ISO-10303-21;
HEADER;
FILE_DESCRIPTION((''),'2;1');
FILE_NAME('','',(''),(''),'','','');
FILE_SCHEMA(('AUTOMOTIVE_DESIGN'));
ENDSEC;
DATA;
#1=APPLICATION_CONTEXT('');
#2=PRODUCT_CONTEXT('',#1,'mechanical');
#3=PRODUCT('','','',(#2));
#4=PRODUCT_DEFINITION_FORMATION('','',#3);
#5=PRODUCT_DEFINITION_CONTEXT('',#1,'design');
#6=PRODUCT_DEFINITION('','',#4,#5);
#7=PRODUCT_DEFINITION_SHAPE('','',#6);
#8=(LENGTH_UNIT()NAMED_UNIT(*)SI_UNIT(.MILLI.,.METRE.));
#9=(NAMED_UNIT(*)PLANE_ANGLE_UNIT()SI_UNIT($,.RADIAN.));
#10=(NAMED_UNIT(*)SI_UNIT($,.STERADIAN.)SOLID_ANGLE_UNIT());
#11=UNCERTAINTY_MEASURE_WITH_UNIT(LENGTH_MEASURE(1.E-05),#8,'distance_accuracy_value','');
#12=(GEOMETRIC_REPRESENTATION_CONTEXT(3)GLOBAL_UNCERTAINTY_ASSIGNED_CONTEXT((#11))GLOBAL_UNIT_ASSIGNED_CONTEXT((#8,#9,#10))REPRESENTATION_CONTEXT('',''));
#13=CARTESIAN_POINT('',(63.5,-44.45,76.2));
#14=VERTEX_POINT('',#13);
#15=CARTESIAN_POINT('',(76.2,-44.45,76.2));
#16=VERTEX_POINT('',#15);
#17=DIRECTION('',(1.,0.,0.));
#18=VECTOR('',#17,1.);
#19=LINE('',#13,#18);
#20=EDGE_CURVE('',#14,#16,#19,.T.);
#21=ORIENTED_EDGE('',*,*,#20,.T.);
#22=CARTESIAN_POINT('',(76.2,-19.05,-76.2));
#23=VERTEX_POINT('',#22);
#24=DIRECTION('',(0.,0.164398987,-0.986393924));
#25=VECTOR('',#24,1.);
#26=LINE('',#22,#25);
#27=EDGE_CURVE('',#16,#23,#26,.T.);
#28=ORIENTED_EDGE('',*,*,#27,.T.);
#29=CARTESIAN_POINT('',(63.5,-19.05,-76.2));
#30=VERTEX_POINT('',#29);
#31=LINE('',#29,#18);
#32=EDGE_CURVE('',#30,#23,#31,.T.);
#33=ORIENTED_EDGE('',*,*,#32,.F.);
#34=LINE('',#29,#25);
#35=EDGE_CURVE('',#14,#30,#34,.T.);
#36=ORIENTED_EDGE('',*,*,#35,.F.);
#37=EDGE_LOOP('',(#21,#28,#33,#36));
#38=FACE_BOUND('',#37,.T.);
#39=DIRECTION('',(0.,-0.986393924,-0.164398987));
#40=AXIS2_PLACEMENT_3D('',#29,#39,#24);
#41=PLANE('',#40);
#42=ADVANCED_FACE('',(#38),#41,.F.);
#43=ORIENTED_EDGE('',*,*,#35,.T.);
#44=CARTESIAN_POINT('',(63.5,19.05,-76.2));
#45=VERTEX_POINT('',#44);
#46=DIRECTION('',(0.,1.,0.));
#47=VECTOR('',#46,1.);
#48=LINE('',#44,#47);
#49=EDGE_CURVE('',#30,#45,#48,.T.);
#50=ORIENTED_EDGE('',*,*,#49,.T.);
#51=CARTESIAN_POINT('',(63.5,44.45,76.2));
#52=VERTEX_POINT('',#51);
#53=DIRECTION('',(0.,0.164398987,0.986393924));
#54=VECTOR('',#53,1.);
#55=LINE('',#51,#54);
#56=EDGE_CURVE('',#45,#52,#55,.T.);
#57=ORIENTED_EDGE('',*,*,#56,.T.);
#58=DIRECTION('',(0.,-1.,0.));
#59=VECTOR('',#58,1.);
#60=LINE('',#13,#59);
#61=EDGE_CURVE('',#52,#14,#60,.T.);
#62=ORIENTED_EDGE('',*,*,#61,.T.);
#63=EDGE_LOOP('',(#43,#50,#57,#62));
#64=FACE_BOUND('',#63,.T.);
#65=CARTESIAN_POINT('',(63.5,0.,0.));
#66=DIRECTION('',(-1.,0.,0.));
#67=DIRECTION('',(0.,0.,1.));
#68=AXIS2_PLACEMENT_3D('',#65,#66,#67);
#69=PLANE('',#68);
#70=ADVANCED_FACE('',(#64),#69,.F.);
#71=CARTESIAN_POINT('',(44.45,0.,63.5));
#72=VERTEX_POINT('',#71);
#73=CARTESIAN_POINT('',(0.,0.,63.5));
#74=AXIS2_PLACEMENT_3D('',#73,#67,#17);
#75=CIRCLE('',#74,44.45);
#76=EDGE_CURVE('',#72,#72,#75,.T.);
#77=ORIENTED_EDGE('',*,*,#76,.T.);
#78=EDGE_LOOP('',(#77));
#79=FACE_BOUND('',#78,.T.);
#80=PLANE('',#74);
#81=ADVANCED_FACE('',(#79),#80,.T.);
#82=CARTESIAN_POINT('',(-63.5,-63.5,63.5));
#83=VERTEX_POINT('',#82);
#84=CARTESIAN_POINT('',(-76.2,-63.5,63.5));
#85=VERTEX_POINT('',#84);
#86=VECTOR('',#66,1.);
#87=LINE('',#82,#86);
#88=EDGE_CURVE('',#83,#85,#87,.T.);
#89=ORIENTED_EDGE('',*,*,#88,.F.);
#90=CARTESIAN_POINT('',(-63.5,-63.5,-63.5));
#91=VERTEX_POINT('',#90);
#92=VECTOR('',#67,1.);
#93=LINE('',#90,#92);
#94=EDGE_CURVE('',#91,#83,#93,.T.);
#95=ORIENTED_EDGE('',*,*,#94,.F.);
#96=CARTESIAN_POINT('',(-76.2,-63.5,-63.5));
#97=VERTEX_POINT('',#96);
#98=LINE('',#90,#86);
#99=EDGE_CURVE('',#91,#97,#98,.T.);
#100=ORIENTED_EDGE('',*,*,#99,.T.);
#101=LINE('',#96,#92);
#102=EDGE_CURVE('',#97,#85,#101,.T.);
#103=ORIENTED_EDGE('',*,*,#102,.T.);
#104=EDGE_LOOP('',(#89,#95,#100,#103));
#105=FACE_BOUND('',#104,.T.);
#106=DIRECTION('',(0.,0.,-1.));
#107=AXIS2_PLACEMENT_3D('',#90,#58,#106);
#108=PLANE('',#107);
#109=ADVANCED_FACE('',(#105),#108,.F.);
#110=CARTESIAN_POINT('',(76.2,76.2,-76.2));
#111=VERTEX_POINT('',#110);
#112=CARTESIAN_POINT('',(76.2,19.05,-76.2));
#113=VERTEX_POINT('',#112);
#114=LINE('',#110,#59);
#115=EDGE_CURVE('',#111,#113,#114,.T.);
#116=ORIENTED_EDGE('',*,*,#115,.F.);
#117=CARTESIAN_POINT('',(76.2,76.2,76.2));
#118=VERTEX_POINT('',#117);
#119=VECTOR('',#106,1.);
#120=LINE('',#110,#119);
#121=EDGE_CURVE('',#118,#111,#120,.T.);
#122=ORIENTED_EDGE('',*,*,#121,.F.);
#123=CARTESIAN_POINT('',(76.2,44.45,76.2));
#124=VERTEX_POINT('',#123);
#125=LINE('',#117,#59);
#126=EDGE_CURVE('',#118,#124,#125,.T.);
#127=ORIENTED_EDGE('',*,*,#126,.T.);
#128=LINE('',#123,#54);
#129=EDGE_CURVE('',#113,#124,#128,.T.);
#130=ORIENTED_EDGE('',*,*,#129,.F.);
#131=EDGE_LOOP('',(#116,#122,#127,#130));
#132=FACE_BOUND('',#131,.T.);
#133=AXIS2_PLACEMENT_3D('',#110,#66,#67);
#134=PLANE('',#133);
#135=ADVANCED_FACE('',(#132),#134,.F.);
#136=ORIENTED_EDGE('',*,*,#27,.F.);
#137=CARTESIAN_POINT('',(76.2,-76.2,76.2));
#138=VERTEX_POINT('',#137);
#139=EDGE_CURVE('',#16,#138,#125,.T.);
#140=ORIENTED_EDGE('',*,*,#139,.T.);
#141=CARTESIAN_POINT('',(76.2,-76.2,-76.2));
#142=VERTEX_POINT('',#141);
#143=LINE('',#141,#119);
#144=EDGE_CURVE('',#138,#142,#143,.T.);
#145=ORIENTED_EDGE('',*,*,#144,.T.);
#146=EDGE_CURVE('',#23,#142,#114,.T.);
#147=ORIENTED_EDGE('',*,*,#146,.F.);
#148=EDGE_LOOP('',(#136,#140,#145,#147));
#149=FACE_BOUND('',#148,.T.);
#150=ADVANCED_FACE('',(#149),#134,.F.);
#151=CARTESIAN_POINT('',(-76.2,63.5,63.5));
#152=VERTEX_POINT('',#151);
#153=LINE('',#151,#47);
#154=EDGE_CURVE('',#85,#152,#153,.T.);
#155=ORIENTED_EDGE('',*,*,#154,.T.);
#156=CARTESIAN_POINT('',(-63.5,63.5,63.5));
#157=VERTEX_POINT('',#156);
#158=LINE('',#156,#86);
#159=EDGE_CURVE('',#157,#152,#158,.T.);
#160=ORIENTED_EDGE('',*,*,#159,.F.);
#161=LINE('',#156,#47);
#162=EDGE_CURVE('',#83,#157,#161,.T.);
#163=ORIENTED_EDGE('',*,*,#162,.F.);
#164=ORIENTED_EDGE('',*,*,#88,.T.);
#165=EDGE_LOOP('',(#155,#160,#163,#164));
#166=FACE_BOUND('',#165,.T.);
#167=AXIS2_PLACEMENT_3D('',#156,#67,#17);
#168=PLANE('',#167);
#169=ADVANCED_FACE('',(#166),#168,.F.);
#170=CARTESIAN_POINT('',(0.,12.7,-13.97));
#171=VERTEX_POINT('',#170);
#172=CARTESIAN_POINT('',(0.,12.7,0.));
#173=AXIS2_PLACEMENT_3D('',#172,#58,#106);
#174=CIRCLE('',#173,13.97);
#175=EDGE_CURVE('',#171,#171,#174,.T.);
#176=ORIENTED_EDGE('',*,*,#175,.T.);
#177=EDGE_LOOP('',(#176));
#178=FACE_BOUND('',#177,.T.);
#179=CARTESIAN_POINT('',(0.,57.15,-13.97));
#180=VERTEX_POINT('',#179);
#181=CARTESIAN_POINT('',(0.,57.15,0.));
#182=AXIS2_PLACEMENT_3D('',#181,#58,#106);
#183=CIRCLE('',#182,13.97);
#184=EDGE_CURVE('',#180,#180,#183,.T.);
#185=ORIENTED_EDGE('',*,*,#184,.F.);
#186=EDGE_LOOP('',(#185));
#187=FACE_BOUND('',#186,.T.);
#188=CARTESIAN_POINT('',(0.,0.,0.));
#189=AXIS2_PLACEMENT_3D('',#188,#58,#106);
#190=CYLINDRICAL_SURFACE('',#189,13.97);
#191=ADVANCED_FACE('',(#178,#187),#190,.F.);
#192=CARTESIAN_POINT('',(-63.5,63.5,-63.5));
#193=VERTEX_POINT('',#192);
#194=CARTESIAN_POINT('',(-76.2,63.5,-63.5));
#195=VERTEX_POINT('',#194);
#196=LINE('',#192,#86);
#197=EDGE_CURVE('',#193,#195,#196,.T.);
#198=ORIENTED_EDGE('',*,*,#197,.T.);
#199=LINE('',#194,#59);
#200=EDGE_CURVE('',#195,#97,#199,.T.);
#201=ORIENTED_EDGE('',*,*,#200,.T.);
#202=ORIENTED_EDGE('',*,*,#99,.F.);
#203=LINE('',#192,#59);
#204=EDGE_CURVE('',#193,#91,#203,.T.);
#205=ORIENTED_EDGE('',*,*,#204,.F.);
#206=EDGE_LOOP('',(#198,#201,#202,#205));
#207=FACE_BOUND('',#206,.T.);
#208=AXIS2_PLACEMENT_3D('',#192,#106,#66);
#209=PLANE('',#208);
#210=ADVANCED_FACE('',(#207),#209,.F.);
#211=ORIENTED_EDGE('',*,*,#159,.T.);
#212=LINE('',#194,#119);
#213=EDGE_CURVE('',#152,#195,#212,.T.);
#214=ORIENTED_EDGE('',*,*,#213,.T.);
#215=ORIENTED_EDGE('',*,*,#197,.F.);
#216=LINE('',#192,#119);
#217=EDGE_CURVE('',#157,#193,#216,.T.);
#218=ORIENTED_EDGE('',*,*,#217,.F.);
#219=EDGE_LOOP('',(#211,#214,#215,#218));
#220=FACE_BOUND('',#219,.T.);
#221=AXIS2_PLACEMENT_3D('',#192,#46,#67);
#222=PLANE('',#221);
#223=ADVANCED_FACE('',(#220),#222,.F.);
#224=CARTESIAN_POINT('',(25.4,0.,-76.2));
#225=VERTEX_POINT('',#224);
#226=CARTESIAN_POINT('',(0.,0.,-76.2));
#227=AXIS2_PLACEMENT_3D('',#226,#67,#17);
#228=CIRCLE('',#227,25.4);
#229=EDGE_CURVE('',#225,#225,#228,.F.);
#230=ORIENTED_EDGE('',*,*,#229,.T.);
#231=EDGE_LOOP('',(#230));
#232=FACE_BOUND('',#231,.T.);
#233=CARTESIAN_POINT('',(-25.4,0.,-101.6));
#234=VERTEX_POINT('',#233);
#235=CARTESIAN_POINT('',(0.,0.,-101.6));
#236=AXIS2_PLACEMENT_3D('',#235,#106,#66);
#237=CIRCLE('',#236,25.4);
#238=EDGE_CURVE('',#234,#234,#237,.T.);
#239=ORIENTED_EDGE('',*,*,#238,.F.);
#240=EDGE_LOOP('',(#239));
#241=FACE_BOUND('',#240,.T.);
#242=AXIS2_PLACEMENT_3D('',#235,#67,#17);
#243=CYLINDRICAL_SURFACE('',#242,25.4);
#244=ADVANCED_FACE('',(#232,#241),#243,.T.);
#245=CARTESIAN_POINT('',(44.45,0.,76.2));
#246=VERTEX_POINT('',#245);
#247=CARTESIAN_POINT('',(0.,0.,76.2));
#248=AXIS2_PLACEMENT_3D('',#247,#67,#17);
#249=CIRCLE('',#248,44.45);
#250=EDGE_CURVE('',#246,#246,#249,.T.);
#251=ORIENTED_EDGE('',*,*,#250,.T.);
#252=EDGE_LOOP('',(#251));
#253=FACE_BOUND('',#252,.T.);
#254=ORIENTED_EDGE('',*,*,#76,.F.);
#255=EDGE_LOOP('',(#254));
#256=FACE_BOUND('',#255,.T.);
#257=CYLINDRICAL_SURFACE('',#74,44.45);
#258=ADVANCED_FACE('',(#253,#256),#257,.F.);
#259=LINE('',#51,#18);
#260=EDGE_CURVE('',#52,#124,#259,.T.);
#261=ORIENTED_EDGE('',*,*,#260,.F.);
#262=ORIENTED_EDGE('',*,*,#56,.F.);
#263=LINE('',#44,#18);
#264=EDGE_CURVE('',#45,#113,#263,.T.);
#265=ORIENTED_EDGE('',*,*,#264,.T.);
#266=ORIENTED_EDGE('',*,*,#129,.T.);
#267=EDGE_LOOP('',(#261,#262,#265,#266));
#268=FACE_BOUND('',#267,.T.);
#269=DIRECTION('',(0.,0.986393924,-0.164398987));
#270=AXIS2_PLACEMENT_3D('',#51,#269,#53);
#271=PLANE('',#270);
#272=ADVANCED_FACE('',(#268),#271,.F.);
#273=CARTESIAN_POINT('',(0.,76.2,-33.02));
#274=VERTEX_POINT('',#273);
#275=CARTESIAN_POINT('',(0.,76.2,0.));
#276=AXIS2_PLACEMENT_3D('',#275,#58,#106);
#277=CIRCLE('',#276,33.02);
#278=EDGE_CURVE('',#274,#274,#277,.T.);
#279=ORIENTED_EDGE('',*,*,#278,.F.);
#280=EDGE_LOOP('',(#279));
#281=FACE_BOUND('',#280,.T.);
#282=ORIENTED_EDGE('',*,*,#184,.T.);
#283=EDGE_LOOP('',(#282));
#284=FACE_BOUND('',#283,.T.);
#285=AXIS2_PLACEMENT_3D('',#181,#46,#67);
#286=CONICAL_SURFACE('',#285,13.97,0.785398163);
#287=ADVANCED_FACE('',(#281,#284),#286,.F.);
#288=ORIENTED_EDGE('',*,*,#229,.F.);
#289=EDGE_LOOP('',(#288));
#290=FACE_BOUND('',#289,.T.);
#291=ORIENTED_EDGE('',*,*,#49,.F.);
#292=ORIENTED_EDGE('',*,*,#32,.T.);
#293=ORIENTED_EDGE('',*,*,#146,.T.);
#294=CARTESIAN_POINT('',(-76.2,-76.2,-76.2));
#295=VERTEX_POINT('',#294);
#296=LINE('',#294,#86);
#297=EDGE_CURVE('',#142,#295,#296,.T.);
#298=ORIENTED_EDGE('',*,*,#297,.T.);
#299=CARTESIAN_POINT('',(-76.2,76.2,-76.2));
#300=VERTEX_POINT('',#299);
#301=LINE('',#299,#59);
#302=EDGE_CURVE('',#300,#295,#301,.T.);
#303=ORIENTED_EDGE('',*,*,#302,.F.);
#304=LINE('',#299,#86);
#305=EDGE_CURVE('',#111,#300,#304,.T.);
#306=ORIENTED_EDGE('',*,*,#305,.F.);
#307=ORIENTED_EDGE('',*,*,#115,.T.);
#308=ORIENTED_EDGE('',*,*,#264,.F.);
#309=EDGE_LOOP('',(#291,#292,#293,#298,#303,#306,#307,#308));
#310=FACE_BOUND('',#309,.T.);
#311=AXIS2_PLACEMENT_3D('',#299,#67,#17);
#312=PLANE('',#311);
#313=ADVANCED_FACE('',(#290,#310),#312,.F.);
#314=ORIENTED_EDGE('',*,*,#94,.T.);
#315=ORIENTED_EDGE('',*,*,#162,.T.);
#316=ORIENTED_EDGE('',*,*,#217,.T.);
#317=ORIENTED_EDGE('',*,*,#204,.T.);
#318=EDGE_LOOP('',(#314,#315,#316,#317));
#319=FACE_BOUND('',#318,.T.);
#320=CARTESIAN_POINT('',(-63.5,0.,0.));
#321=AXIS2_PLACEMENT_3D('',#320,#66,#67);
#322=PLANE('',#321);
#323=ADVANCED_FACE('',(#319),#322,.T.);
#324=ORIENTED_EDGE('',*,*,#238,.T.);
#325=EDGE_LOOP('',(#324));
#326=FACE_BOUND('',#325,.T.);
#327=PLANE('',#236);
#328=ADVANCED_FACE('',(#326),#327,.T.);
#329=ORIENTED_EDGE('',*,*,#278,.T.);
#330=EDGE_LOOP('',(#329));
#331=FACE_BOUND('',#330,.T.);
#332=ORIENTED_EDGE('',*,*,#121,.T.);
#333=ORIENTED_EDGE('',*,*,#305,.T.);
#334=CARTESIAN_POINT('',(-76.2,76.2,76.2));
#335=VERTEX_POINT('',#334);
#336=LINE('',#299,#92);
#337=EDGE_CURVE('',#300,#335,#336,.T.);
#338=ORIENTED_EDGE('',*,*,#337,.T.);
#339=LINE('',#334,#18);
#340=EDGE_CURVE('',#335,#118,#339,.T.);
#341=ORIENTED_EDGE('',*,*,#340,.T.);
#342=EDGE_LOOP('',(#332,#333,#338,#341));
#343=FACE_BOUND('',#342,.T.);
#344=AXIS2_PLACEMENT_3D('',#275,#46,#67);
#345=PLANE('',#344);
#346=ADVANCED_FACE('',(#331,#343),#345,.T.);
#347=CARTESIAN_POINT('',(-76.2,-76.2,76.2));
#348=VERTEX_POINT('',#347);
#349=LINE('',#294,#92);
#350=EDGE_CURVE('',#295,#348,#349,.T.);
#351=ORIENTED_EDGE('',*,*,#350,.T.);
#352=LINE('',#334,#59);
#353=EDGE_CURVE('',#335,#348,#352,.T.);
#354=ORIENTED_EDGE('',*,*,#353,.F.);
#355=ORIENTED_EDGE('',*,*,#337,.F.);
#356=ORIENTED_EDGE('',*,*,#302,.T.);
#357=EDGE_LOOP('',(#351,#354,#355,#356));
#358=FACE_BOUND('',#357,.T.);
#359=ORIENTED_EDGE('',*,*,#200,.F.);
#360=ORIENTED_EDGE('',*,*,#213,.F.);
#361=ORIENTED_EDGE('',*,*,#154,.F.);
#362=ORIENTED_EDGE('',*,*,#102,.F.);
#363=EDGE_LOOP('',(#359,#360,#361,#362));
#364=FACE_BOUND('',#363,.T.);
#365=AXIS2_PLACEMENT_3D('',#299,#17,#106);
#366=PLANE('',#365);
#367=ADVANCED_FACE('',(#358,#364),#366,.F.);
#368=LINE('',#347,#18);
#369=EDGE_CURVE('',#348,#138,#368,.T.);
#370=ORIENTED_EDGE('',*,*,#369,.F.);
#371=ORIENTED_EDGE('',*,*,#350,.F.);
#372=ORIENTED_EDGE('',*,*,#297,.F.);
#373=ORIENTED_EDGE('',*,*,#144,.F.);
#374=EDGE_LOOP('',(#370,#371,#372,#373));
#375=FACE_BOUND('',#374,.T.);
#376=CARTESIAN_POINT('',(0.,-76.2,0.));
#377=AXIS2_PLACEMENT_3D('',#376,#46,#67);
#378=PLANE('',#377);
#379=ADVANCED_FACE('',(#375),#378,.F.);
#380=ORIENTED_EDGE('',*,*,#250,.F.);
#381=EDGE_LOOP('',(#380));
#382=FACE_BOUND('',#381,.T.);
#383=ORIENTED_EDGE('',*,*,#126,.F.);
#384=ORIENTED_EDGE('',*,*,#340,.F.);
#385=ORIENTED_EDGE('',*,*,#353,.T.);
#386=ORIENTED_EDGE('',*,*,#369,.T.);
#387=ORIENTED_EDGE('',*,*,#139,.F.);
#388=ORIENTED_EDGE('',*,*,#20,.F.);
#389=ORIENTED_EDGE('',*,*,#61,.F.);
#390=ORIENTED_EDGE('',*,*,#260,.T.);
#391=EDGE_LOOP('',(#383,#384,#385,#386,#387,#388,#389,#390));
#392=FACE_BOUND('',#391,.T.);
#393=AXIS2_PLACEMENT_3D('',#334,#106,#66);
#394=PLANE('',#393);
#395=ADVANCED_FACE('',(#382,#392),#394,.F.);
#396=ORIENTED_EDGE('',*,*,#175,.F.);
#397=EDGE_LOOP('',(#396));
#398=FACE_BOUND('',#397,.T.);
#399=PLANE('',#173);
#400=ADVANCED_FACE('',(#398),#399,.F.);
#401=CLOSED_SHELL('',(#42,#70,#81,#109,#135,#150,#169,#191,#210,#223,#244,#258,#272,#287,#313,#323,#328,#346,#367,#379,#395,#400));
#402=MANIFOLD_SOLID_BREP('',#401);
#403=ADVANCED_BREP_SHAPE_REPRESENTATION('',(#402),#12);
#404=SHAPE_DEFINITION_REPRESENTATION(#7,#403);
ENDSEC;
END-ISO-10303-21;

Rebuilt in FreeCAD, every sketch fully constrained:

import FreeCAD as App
import Part
import Sketcher
Q = App.Units.Quantity

doc = App.newDocument("Part")
body = doc.addObject("PartDesign::Body", "Body")

# Sketch on XZ plane
sketch1 = body.newObject("Sketcher::SketchObject", "Sketch")
sketch1.AttachmentSupport = (doc.getObject("XZ_Plane"), [""])
sketch1.MapMode = "FlatFace"
sketch1.addGeometry([
    Part.LineSegment(App.Vector(-76.2, -76.2, 0), App.Vector(-76.2, 76.2, 0)),
    Part.LineSegment(App.Vector(-76.2, 76.2, 0), App.Vector(76.2, 76.2, 0)),
    Part.LineSegment(App.Vector(76.2, 76.2, 0), App.Vector(76.2, -76.2, 0)),
    Part.LineSegment(App.Vector(76.2, -76.2, 0), App.Vector(-76.2, -76.2, 0)),
], False)
sketch1.addConstraint([
    Sketcher.Constraint("Coincident", 0, 2, 1, 1),
    Sketcher.Constraint("Coincident", 1, 2, 2, 1),
    Sketcher.Constraint("Coincident", 2, 2, 3, 1),
    Sketcher.Constraint("Coincident", 3, 2, 0, 1),
    Sketcher.Constraint("Vertical", 0),
    Sketcher.Constraint("Horizontal", 1),
    Sketcher.Constraint("Vertical", 2),
    Sketcher.Constraint("Horizontal", 3),
    Sketcher.Constraint("Symmetric", 0, 2, 2, 2, -1, 1),
    Sketcher.Constraint("Equal", 3, 0),
    Sketcher.Constraint("DistanceX", 1, 1, 1, 2, Q("6 in")),
])
pad1 = body.newObject("PartDesign::Pad", "Pad")
pad1.Profile = sketch1
pad1.Length = Q("6 in")
pad1.Midplane = True

# Sketch on XY plane
sketch2 = body.newObject("Sketcher::SketchObject", "Sketch001")
sketch2.AttachmentSupport = (doc.getObject("XY_Plane"), [""])
sketch2.MapMode = "FlatFace"
sketch2.addGeometry([
    Part.LineSegment(App.Vector(0, 12.7, 0), App.Vector(13.97, 12.7, 0)),  # 0
    Part.LineSegment(App.Vector(13.97, 12.7, 0), App.Vector(13.97, 57.15, 0)),  # 1
    Part.LineSegment(App.Vector(13.97, 57.15, 0), App.Vector(33.02, 76.2, 0)),  # 2
    Part.LineSegment(App.Vector(33.02, 76.2, 0), App.Vector(0, 76.2, 0)),  # 3
    Part.LineSegment(App.Vector(0, 76.2, 0), App.Vector(0, 12.7, 0)),  # 4
], False)
sketch2.addConstraint([
    Sketcher.Constraint("Coincident", 0, 2, 1, 1),
    Sketcher.Constraint("Coincident", 1, 2, 2, 1),
    Sketcher.Constraint("Coincident", 2, 2, 3, 1),
    Sketcher.Constraint("Coincident", 3, 2, 4, 1),
    Sketcher.Constraint("Coincident", 4, 2, 0, 1),
    Sketcher.Constraint("Horizontal", 0),
    Sketcher.Constraint("Vertical", 1),
    Sketcher.Constraint("Horizontal", 3),
    Sketcher.Constraint("Vertical", 4),
    Sketcher.Constraint("PointOnObject", 3, 2, -2),
    Sketcher.Constraint("DistanceX", 3, 2, 3, 1, Q("1.3 in")),
    Sketcher.Constraint("DistanceY", 4, 2, 4, 1, Q("2.5 in")),
    Sketcher.Constraint("DistanceY", -1, 1, 2, 2, Q("3 in")),
    Sketcher.Constraint("Angle", 2, Q("45 deg")),
    Sketcher.Constraint("DistanceX", 0, 1, 0, 2, Q("0.55 in")),
])
groove = body.newObject("PartDesign::Groove", "Groove")
groove.Profile = sketch2
groove.ReferenceAxis = (sketch2, ["V_Axis"])
groove.Angle = 360

# Sketch on YZ plane
sketch3 = body.newObject("Sketcher::SketchObject", "Sketch002")
sketch3.AttachmentSupport = (doc.getObject("YZ_Plane"), [""])
sketch3.MapMode = "FlatFace"
sketch3.AttachmentOffset = App.Placement(App.Vector(0, 0, 3 * 25.4), App.Rotation())
sketch3.addGeometry([
    Part.LineSegment(App.Vector(19.05, -76.2, 0), App.Vector(44.45, 76.2, 0)),
    Part.LineSegment(App.Vector(44.45, 76.2, 0), App.Vector(-44.45, 76.2, 0)),
    Part.LineSegment(App.Vector(-44.45, 76.2, 0), App.Vector(-19.05, -76.2, 0)),
    Part.LineSegment(App.Vector(-19.05, -76.2, 0), App.Vector(19.05, -76.2, 0)),
], False)
sketch3.addConstraint([
    Sketcher.Constraint("Coincident", 0, 2, 1, 1),
    Sketcher.Constraint("Coincident", 1, 2, 2, 1),
    Sketcher.Constraint("Coincident", 2, 2, 3, 1),
    Sketcher.Constraint("Coincident", 3, 2, 0, 1),
    Sketcher.Constraint("Horizontal", 1),
    Sketcher.Constraint("Horizontal", 3),
    Sketcher.Constraint("Equal", 0, 2),
    Sketcher.Constraint("DistanceX", 1, 2, 1, 1, Q("3.5 in")),
    Sketcher.Constraint("DistanceX", 3, 1, 3, 2, Q("1.5 in")),
    Sketcher.Constraint("DistanceY", -1, 1, 0, 2, Q("3 in")),
    Sketcher.Constraint("DistanceY", 2, 2, -1, 1, Q("3 in")),
    Sketcher.Constraint("DistanceX", -1, 1, 0, 2, Q("1.75 in")),
])
pocket1 = body.newObject("PartDesign::Pocket", "Pocket")
pocket1.Profile = sketch3
pocket1.Length = Q("0.5 in")

# Sketch on XY plane
sketch4 = body.newObject("Sketcher::SketchObject", "Sketch003")
sketch4.AttachmentSupport = (doc.getObject("XY_Plane"), [""])
sketch4.MapMode = "FlatFace"
sketch4.AttachmentOffset = App.Placement(App.Vector(0, 0, 3 * 25.4), App.Rotation())
sketch4.addGeometry(Part.Circle(App.Vector(0, 0, 0), App.Vector(0, 0, 1), 44.45), False)
sketch4.addConstraint([
    Sketcher.Constraint("Coincident", 0, 3, -1, 1),
    Sketcher.Constraint("Diameter", 0, Q("3.5 in")),
])
pocket2 = body.newObject("PartDesign::Pocket", "Pocket001")
pocket2.Profile = sketch4
pocket2.Length = Q("0.5 in")

# Sketch on XY plane
sketch5 = body.newObject("Sketcher::SketchObject", "Sketch004")
sketch5.AttachmentSupport = (doc.getObject("XY_Plane"), [""])
sketch5.MapMode = "FlatFace"
sketch5.AttachmentOffset = App.Placement(App.Vector(0, 0, -3 * 25.4), App.Rotation())
sketch5.addGeometry(Part.Circle(App.Vector(0, 0, 0), App.Vector(0, 0, 1), 25.4), False)
sketch5.addConstraint([
    Sketcher.Constraint("Coincident", 0, 3, -1, 1),
    Sketcher.Constraint("Diameter", 0, Q("2 in")),
])
pad2 = body.newObject("PartDesign::Pad", "Pad001")
pad2.Profile = sketch5
pad2.Length = Q("1 in")
pad2.Reversed = True

# Sketch on YZ plane
sketch6 = body.newObject("Sketcher::SketchObject", "Sketch005")
sketch6.AttachmentSupport = (doc.getObject("YZ_Plane"), [""])
sketch6.MapMode = "FlatFace"
sketch6.AttachmentOffset = App.Placement(App.Vector(0, 0, -3 * 25.4), App.Rotation())
sketch6.addGeometry([
    Part.LineSegment(App.Vector(63.5, -63.5, 0), App.Vector(-63.5, -63.5, 0)),
    Part.LineSegment(App.Vector(-63.5, -63.5, 0), App.Vector(-63.5, 63.5, 0)),
    Part.LineSegment(App.Vector(-63.5, 63.5, 0), App.Vector(63.5, 63.5, 0)),
    Part.LineSegment(App.Vector(63.5, 63.5, 0), App.Vector(63.5, -63.5, 0)),
], False)
sketch6.addConstraint([
    Sketcher.Constraint("Coincident", 0, 2, 1, 1),
    Sketcher.Constraint("Coincident", 1, 2, 2, 1),
    Sketcher.Constraint("Coincident", 2, 2, 3, 1),
    Sketcher.Constraint("Coincident", 3, 2, 0, 1),
    Sketcher.Constraint("Horizontal", 0),
    Sketcher.Constraint("Vertical", 1),
    Sketcher.Constraint("Horizontal", 2),
    Sketcher.Constraint("Vertical", 3),
    Sketcher.Constraint("Symmetric", 0, 2, 2, 2, -1, 1),
    Sketcher.Constraint("Equal", 2, 1),
    Sketcher.Constraint("DistanceX", 0, 2, 0, 1, Q("5 in")),
])
pocket3 = body.newObject("PartDesign::Pocket", "Pocket002")
pocket3.Profile = sketch6
pocket3.Length = Q("0.5 in")
pocket3.Reversed = True

doc.recompute()
